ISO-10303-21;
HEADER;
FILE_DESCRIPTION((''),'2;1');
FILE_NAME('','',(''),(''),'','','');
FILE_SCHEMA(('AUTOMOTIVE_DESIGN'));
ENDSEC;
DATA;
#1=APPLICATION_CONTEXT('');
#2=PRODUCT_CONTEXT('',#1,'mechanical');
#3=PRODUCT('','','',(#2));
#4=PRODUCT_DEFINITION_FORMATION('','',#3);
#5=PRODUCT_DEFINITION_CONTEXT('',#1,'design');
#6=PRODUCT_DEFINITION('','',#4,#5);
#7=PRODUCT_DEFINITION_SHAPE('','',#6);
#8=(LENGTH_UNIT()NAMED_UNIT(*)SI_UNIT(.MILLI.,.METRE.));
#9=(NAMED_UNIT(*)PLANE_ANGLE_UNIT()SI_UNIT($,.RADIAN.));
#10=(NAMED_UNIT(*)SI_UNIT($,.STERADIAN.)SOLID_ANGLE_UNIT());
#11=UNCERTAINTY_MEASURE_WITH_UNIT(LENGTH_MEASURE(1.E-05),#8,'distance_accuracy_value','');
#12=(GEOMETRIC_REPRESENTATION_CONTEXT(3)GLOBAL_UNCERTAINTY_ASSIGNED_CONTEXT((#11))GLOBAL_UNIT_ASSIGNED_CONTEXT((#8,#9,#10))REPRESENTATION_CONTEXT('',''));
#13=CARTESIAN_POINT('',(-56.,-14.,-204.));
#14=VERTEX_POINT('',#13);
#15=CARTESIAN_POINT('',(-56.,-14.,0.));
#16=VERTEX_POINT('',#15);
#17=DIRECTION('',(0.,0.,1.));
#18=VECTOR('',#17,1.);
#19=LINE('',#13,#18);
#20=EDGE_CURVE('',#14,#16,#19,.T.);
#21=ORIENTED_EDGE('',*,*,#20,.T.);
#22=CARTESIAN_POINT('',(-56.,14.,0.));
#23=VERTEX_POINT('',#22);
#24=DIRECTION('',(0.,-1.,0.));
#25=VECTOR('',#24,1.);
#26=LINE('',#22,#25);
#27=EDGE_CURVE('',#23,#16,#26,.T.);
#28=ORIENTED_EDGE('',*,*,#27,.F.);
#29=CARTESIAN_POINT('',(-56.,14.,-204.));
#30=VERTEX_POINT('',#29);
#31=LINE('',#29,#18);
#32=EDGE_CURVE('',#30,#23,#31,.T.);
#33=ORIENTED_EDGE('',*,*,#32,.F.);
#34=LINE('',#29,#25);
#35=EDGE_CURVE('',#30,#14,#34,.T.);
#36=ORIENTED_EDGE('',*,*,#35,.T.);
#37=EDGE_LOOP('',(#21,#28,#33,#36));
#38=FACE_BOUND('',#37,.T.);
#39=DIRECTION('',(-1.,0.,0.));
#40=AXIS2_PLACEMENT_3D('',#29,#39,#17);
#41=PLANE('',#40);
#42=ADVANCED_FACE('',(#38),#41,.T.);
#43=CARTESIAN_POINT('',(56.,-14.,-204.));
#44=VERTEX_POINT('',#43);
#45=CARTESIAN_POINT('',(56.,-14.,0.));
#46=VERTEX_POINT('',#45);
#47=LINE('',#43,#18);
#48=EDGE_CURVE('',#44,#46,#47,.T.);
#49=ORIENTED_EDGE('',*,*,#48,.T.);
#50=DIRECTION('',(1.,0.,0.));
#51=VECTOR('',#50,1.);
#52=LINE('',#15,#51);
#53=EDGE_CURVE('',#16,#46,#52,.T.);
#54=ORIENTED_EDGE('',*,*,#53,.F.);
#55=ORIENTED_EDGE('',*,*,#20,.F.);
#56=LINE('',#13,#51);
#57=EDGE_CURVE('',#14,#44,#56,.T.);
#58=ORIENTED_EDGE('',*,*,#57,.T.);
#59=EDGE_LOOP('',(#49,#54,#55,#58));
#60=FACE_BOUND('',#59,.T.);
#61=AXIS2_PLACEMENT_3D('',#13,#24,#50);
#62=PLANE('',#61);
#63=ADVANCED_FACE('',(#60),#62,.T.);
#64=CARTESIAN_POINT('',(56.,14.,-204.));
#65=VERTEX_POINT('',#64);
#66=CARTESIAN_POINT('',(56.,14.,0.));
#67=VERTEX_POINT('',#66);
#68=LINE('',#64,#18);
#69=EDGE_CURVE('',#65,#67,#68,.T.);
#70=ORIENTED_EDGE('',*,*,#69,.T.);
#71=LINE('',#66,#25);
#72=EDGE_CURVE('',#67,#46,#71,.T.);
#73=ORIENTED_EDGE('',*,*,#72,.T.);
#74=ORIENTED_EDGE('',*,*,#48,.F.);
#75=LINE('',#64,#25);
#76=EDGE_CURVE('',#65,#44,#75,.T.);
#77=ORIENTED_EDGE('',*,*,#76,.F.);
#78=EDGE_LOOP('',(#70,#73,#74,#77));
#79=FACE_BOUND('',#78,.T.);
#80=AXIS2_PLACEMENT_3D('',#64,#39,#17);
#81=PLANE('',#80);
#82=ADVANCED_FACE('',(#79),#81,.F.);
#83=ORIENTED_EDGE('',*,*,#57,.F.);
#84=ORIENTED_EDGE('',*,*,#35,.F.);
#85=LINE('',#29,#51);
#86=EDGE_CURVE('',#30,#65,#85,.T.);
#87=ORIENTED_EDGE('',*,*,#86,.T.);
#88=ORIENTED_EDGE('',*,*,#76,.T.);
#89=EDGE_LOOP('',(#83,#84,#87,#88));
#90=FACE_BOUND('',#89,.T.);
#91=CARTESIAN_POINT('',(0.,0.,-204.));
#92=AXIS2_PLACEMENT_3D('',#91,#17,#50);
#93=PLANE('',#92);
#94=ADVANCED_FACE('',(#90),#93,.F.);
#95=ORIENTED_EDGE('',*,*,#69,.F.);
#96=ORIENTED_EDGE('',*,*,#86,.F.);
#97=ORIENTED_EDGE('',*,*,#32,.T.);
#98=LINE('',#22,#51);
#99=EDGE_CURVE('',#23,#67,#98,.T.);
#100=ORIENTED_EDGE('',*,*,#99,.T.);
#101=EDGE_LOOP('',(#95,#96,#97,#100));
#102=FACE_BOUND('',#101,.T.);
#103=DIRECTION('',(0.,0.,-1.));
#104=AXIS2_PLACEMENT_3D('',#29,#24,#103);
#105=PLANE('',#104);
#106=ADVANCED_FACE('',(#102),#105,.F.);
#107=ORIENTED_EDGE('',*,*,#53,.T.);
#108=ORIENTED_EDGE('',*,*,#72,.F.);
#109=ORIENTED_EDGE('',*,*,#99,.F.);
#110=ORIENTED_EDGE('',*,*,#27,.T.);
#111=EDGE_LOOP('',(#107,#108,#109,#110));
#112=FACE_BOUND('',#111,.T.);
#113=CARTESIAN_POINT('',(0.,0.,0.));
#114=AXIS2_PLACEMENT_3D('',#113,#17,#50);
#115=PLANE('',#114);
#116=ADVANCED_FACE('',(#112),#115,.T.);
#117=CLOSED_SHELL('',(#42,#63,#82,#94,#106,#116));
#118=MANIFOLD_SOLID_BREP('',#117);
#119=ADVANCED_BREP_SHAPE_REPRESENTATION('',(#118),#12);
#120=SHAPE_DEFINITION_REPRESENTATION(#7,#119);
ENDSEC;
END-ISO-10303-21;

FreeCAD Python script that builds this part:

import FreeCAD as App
import Part
import Sketcher
from FreeCAD import Vector


def add_polygon(sketch, points):
    """Adds a closed chain of lines whose ends are joined by coincident constraints."""
    first, n = sketch.GeometryCount, len(points)
    for a, b in zip(points, points[1:] + points[:1]):
        sketch.addGeometry(Part.LineSegment(App.Vector(*a, 0), App.Vector(*b, 0)), False)
    for i in range(n):
        sketch.addConstraint(Sketcher.Constraint("Coincident", first + i, 2, first + (i + 1) % n, 1))

doc = App.newDocument("Part")
body = doc.addObject("PartDesign::Body", "Body")

# Sketch on XY plane
sketch1 = body.newObject("Sketcher::SketchObject", "Sketch")
sketch1.AttachmentSupport = (doc.getObject("XY_Plane"), [""])
sketch1.MapMode = "FlatFace"
add_polygon(sketch1, [(-56, 14), (-56, -14), (56, -14), (56, 14)])  # lines 0-3
sketch1.addConstraint([
    Sketcher.Constraint("Vertical", 0),
    Sketcher.Constraint("Horizontal", 1),
    Sketcher.Constraint("Vertical", 2),
    Sketcher.Constraint("Horizontal", 3),
    Sketcher.Constraint("Symmetric", 0, 2, 2, 2, -1, 1),
    Sketcher.Constraint("DistanceX", 1, 1, 1, 2, 112.0),
    Sketcher.Constraint("DistanceY", 0, 2, 0, 1, 28.0),
])
pad1 = body.newObject("PartDesign::Pad", "Pad")
pad1.Profile = sketch1
pad1.Length = 204
pad1.Reversed = True

doc.recompute()
